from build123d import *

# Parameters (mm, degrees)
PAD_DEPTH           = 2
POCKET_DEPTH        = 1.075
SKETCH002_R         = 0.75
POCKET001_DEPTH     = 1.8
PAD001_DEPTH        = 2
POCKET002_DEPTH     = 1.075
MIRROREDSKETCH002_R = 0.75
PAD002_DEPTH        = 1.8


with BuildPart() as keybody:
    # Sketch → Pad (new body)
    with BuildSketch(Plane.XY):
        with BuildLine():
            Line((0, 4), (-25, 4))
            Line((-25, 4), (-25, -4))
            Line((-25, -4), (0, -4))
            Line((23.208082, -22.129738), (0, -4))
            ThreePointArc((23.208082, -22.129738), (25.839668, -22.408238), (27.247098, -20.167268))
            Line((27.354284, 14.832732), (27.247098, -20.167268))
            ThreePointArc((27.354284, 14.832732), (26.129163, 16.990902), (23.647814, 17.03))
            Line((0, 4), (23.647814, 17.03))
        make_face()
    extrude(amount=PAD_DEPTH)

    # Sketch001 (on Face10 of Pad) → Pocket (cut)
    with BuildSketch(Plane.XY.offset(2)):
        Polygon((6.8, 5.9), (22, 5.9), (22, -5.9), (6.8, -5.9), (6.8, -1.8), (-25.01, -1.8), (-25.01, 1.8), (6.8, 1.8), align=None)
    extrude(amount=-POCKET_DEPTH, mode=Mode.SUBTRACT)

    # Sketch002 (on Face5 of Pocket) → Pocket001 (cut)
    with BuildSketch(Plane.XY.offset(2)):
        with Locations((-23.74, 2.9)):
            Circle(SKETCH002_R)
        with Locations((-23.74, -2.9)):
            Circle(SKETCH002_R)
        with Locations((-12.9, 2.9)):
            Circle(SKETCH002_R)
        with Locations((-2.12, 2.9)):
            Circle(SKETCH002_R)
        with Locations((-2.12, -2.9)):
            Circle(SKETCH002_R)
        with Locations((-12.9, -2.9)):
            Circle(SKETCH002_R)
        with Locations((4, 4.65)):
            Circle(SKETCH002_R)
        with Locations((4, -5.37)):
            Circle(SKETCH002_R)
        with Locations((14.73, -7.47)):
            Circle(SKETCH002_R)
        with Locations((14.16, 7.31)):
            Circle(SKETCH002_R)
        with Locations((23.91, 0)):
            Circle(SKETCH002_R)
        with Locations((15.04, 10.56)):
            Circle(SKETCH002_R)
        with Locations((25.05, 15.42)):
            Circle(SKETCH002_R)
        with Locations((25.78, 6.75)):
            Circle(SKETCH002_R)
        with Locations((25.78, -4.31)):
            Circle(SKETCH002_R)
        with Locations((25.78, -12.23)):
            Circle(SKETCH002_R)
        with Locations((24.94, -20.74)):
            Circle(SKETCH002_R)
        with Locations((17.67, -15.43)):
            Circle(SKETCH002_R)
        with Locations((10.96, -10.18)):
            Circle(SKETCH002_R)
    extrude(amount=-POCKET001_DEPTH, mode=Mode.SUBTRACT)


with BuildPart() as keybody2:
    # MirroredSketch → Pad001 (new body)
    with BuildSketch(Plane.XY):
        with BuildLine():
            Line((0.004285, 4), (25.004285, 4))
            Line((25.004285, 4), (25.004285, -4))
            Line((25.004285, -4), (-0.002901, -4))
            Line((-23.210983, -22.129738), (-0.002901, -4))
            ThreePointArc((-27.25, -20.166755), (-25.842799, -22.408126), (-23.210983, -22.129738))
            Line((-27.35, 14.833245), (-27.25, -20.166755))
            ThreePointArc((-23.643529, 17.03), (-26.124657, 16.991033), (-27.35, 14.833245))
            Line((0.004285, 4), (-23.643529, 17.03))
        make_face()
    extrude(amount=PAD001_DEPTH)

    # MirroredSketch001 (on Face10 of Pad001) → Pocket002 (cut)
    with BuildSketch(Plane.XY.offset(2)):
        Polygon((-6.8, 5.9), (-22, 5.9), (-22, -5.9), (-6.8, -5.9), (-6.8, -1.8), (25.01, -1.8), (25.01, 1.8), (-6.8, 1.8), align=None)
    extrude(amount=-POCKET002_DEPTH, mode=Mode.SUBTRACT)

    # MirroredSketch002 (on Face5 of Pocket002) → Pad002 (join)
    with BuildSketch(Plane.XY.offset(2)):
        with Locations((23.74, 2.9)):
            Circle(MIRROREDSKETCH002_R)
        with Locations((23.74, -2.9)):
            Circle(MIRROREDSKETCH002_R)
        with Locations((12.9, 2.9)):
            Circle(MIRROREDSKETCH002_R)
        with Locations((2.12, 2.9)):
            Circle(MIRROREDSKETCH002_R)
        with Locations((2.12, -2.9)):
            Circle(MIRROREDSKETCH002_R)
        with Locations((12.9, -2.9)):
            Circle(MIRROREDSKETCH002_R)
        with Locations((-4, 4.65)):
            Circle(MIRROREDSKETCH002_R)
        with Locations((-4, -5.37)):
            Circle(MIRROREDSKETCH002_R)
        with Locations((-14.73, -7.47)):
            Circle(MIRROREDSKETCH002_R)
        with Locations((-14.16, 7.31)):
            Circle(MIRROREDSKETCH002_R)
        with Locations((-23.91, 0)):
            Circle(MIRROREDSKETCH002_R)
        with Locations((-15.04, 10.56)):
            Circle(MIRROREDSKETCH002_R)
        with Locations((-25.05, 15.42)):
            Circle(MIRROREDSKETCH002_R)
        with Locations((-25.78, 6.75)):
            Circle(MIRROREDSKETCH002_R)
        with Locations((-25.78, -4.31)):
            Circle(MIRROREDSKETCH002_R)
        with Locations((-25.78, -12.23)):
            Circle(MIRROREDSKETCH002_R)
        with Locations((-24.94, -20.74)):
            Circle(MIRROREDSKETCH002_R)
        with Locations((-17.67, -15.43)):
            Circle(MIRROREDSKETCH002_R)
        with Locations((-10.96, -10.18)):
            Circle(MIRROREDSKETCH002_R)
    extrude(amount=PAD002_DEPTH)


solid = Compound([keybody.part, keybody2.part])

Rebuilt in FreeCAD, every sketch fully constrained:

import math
import FreeCAD as App
import Part
import Sketcher

V = App.Vector
Q = App.Units.Quantity

doc = App.newDocument("Part")
body = doc.addObject("PartDesign::Body", "Body")

sketch1 = body.newObject("Sketcher::SketchObject", "Sketch")
sketch1.AttachmentSupport = (doc.getObject("XY_Plane"), [""])
sketch1.MapMode = "FlatFace"
sketch1.addGeometry([
    Part.LineSegment(V(0, 4, 0), V(-25, 4, 0)),
    Part.LineSegment(V(-25, 4, 0), V(-25, -4, 0)),
    Part.LineSegment(V(-25, -4, 0), V(0, -4, 0)),
    Part.LineSegment(V(0, -4, 0), V(23.208082, -22.129738, 0)),
    Part.ArcOfCircle(Part.Circle(V(24.74711, -20.159612, 0), V(0, 0, 1), 2.5), math.radians(-127.996331), math.radians(-0.175452)),
    Part.LineSegment(V(27.247098, -20.167268, 0), V(27.354284, 14.832732, 0)),
    Part.ArcOfCircle(Part.Circle(V(24.854295, 14.840387, 0), V(0, 0, 1), 2.5), math.radians(-0.175442), math.radians(118.854857)),
    Part.LineSegment(V(23.647814, 17.03, 0), V(0, 4, 0)),
], False)
sketch1.addConstraint([
    Sketcher.Constraint("Coincident", 0, 2, 1, 1),
    Sketcher.Constraint("Coincident", 1, 2, 2, 1),
    Sketcher.Constraint("Coincident", 2, 2, 3, 1),
    Sketcher.Constraint("Tangent", 3, 2, 4, 1),
    Sketcher.Constraint("Tangent", 4, 2, 5, 1),
    Sketcher.Constraint("Tangent", 5, 2, 6, 1),
    Sketcher.Constraint("Tangent", 6, 2, 7, 1),
    Sketcher.Constraint("Coincident", 7, 2, 0, 1),
    Sketcher.Constraint("Horizontal", 0),
    Sketcher.Constraint("Vertical", 1),
    Sketcher.Constraint("Horizontal", 2),
    Sketcher.Constraint("Equal", 4, 6),
    Sketcher.Constraint("Symmetric", 2, 2, 7, 2, -1, 1),
    Sketcher.Constraint("PointOnObject", 2, 2, -2),
    Sketcher.Constraint("Radius", 4, Q("2.5 mm")),
    Sketcher.Constraint("DistanceX", 0, 2, 0, 1, Q("25 mm")),
    Sketcher.Constraint("DistanceY", 1, 2, 1, 1, Q("8 mm")),
    Sketcher.Constraint("Distance", 7, Q("27 mm")),
    Sketcher.Constraint("DistanceY", 4, 3, 6, 3, Q("35 mm")),
    Sketcher.Constraint("Distance", 3, Q("29.449999 mm")),
    Sketcher.Constraint("DistanceY", -1, 1, 6, 2, Q("17.03 mm")),
])
pad1 = body.newObject("PartDesign::Pad", "Pad")
pad1.Profile = sketch1
pad1.Length = 2

sketch2 = body.newObject("Sketcher::SketchObject", "Sketch001")
sketch2.AttachmentSupport = (doc.getObject("XY_Plane"), [""])
sketch2.MapMode = "FlatFace"
sketch2.AttachmentOffset = App.Placement(V(0, 0, 2), App.Rotation())
sketch2.addGeometry([
    Part.LineSegment(V(22, 5.9, 0), V(6.8, 5.9, 0)),
    Part.LineSegment(V(6.8, 5.9, 0), V(6.8, 1.8, 0)),
    Part.LineSegment(V(6.8, 1.8, 0), V(-25.01, 1.8, 0)),
    Part.LineSegment(V(-25.01, 1.8, 0), V(-25.01, -1.8, 0)),
    Part.LineSegment(V(-25.01, -1.8, 0), V(6.8, -1.8, 0)),
    Part.LineSegment(V(6.8, -1.8, 0), V(6.8, -5.9, 0)),
    Part.LineSegment(V(6.8, -5.9, 0), V(22, -5.9, 0)),
    Part.LineSegment(V(22, -5.9, 0), V(22, 5.9, 0)),
], False)
sketch2.addConstraint([
    Sketcher.Constraint("Coincident", 0, 2, 1, 1),
    Sketcher.Constraint("Coincident", 1, 2, 2, 1),
    Sketcher.Constraint("Coincident", 2, 2, 3, 1),
    Sketcher.Constraint("Coincident", 3, 2, 4, 1),
    Sketcher.Constraint("Coincident", 4, 2, 5, 1),
    Sketcher.Constraint("Coincident", 5, 2, 6, 1),
    Sketcher.Constraint("Coincident", 6, 2, 7, 1),
    Sketcher.Constraint("Coincident", 7, 2, 0, 1),
    Sketcher.Constraint("Horizontal", 0),
    Sketcher.Constraint("Vertical", 1),
    Sketcher.Constraint("Horizontal", 2),
    Sketcher.Constraint("Vertical", 3),
    Sketcher.Constraint("Horizontal", 4),
    Sketcher.Constraint("Vertical", 5),
    Sketcher.Constraint("Horizontal", 6),
    Sketcher.Constraint("Vertical", 7),
    Sketcher.Constraint("Symmetric", 1, 2, 4, 2, -1),
    Sketcher.Constraint("Equal", 1, 5),
    Sketcher.Constraint("DistanceX", 0, 2, 0, 1, Q("15.2 mm")),
    Sketcher.Constraint("DistanceY", 1, 2, 1, 1, Q("4.1 mm")),
    Sketcher.Constraint("DistanceY", 3, 2, 3, 1, Q("3.6 mm")),
    Sketcher.Constraint("DistanceX", -1, 1, 6, 2, Q("22 mm")),
    Sketcher.Constraint("DistanceX", 2, 2, 2, 1, Q("31.81 mm")),
])
pocket1 = body.newObject("PartDesign::Pocket", "Pocket")
pocket1.Profile = sketch2
pocket1.Length = 1.075

sketch3 = body.newObject("Sketcher::SketchObject", "Sketch002")
sketch3.AttachmentSupport = (doc.getObject("XY_Plane"), [""])
sketch3.MapMode = "FlatFace"
sketch3.AttachmentOffset = App.Placement(V(0, 0, 2), App.Rotation())
sketch3.addGeometry([
    Part.Circle(V(-23.74, 2.9, 0), V(0, 0, 1), 0.75),
    Part.Circle(V(-23.74, -2.9, 0), V(0, 0, 1), 0.75),
    Part.Circle(V(-12.9, 2.9, 0), V(0, 0, 1), 0.75),
    Part.Circle(V(-2.12, 2.9, 0), V(0, 0, 1), 0.75),
    Part.Circle(V(-2.12, -2.9, 0), V(0, 0, 1), 0.75),
    Part.Circle(V(-12.9, -2.9, 0), V(0, 0, 1), 0.75),
    Part.Circle(V(4, 4.65, 0), V(0, 0, 1), 0.75),
    Part.Circle(V(4, -5.37, 0), V(0, 0, 1), 0.75),
    Part.Circle(V(14.73, -7.47, 0), V(0, 0, 1), 0.75),
    Part.Circle(V(14.16, 7.31, 0), V(0, 0, 1), 0.75),
    Part.Circle(V(23.91, 0, 0), V(0, 0, 1), 0.75),
    Part.Circle(V(15.04, 10.56, 0), V(0, 0, 1), 0.75),
    Part.Circle(V(25.05, 15.42, 0), V(0, 0, 1), 0.75),
    Part.Circle(V(25.78, 6.75, 0), V(0, 0, 1), 0.75),
    Part.Circle(V(25.78, -4.31, 0), V(0, 0, 1), 0.75),
    Part.Circle(V(25.78, -12.23, 0), V(0, 0, 1), 0.75),
    Part.Circle(V(24.94, -20.74, 0), V(0, 0, 1), 0.75),
    Part.Circle(V(17.67, -15.43, 0), V(0, 0, 1), 0.75),
    Part.Circle(V(10.96, -10.18, 0), V(0, 0, 1), 0.75),
], False)
sketch3.addConstraint([
    Sketcher.Constraint("Equal", 0, 1),
    Sketcher.Constraint("Equal", 1, 2),
    Sketcher.Constraint("Equal", 2, 3),
    Sketcher.Constraint("Equal", 3, 4),
    Sketcher.Constraint("Equal", 4, 5),
    Sketcher.Constraint("Equal", 5, 6),
    Sketcher.Constraint("Equal", 6, 7),
    Sketcher.Constraint("Equal", 7, 8),
    Sketcher.Constraint("Equal", 8, 9),
    Sketcher.Constraint("Equal", 9, 10),
    Sketcher.Constraint("Equal", 10, 11),
    Sketcher.Constraint("Equal", 11, 12),
    Sketcher.Constraint("Equal", 12, 13),
    Sketcher.Constraint("Equal", 13, 14),
    Sketcher.Constraint("Equal", 14, 15),
    Sketcher.Constraint("Equal", 15, 16),
    Sketcher.Constraint("Equal", 16, 17),
    Sketcher.Constraint("Equal", 17, 18),
    Sketcher.Constraint("Symmetric", 0, 3, 1, 3, -1),
    Sketcher.Constraint("Symmetric", 3, 3, 4, 3, -1),
    Sketcher.Constraint("Symmetric", 2, 3, 5, 3, -1),
    Sketcher.Constraint("PointOnObject", 10, 3, -1),
    Sketcher.Constraint("Horizontal", 0, 3, 2, 3),
    Sketcher.Constraint("Horizontal", 2, 3, 3, 3),
    Sketcher.Constraint("Vertical", 6, 3, 7, 3),
    Sketcher.Constraint("Vertical", 13, 3, 14, 3),
    Sketcher.Constraint("Vertical", 14, 3, 15, 3),
    Sketcher.Constraint("Diameter", 0, Q("1.5 mm")),
    Sketcher.Constraint("DistanceX", -1, 1, 6, 3, Q("4 mm")),
    Sketcher.Constraint("DistanceY", -1, 1, 0, 3, Q("2.9 mm")),
    Sketcher.Constraint("DistanceX", 2, 3, -1, 1, Q("12.9 mm")),
    Sketcher.Constraint("DistanceY", 8, 3, 7, 3, Q("2.1 mm")),
    Sketcher.Constraint("DistanceY", 17, 3, 15, 3, Q("3.2 mm")),
    Sketcher.Constraint("DistanceX", 0, 3, -1, 1, Q("23.74 mm")),
    Sketcher.Constraint("DistanceX", 3, 3, -1, 1, Q("2.12 mm")),
    Sketcher.Constraint("DistanceY", -1, 1, 6, 3, Q("4.65 mm")),
    Sketcher.Constraint("DistanceY", 7, 3, -1, 1, Q("5.37 mm")),
    Sketcher.Constraint("DistanceX", -1, 1, 8, 3, Q("14.73 mm")),
    Sketcher.Constraint("DistanceX", -1, 1, 9, 3, Q("14.16 mm")),
    Sketcher.Constraint("DistanceY", -1, 1, 9, 3, Q("7.31 mm")),
    Sketcher.Constraint("DistanceX", -1, 1, 10, 3, Q("23.91 mm")),
    Sketcher.Constraint("DistanceX", -1, 1, 11, 3, Q("15.04 mm")),
    Sketcher.Constraint("DistanceY", -1, 1, 11, 3, Q("10.56 mm")),
    Sketcher.Constraint("DistanceX", -1, 1, 12, 3, Q("25.05 mm")),
    Sketcher.Constraint("DistanceY", -1, 1, 12, 3, Q("15.42 mm")),
    Sketcher.Constraint("DistanceX", -1, 1, 13, 3, Q("25.78 mm")),
    Sketcher.Constraint("DistanceY", -1, 1, 13, 3, Q("6.75 mm")),
    Sketcher.Constraint("DistanceY", 14, 3, -1, 1, Q("4.31 mm")),
    Sketcher.Constraint("DistanceY", 15, 3, -1, 1, Q("12.23 mm")),
    Sketcher.Constraint("DistanceX", -1, 1, 16, 3, Q("24.94 mm")),
    Sketcher.Constraint("DistanceY", 16, 3, -1, 1, Q("20.74 mm")),
    Sketcher.Constraint("DistanceX", -1, 1, 17, 3, Q("17.67 mm")),
    Sketcher.Constraint("DistanceX", -1, 1, 18, 3, Q("10.96 mm")),
    Sketcher.Constraint("DistanceY", 18, 3, -1, 1, Q("10.18 mm")),
])
pocket2 = body.newObject("PartDesign::Pocket", "Pocket001")
pocket2.Profile = sketch3
pocket2.Length = 1.8
body2 = doc.addObject("PartDesign::Body", "Body001")

sketch4 = body2.newObject("Sketcher::SketchObject", "Sketch003")
sketch4.AttachmentSupport = (doc.getObject("XY_Plane001"), [""])
sketch4.MapMode = "FlatFace"
sketch4.addGeometry([
    Part.LineSegment(V(25.004285, 4, 0), V(0.004285, 4, 0)),
    Part.LineSegment(V(0.004285, 4, 0), V(-23.643529, 17.03, 0)),
    Part.ArcOfCircle(Part.Circle(V(-24.85001, 14.840388, 0), V(0, 0, 1), 2.5), math.radians(61.145136), math.radians(180.163699)),
    Part.LineSegment(V(-27.35, 14.833245, 0), V(-27.25, -20.166755, 0)),
    Part.ArcOfCircle(Part.Circle(V(-24.75001, -20.159613, 0), V(0, 0, 1), 2.5), math.radians(-179.83631), math.radians(-52.00367)),
    Part.LineSegment(V(-23.210983, -22.129738, 0), V(-0.002901, -4, 0)),
    Part.LineSegment(V(-0.002901, -4, 0), V(25.004285, -4, 0)),
    Part.LineSegment(V(25.004285, -4, 0), V(25.004285, 4, 0)),
], False)
sketch4.addConstraint([
    Sketcher.Constraint("Coincident", 0, 2, 1, 1),
    Sketcher.Constraint("Tangent", 1, 2, 2, 1),
    Sketcher.Constraint("Tangent", 2, 2, 3, 1),
    Sketcher.Constraint("Tangent", 3, 2, 4, 1),
    Sketcher.Constraint("Tangent", 4, 2, 5, 1),
    Sketcher.Constraint("Coincident", 5, 2, 6, 1),
    Sketcher.Constraint("Coincident", 6, 2, 7, 1),
    Sketcher.Constraint("Coincident", 7, 2, 0, 1),
    Sketcher.Constraint("Horizontal", 0),
    Sketcher.Constraint("Horizontal", 6),
    Sketcher.Constraint("Vertical", 7),
    Sketcher.Constraint("Equal", 2, 4),
    Sketcher.Constraint("Radius", 2, Q("2.5 mm")),
    Sketcher.Constraint("DistanceX", 0, 2, 0, 1, Q("25 mm")),
    Sketcher.Constraint("DistanceY", 7, 1, 7, 2, Q("8 mm")),
    Sketcher.Constraint("Distance", 1, Q("27 mm")),
    Sketcher.Constraint("DistanceY", -1, 1, 0, 2, Q("4 mm")),
    Sketcher.Constraint("DistanceY", 4, 3, 2, 3, Q("35 mm")),
    Sketcher.Constraint("DistanceX", 2, 3, 4, 3, Q("0.1 mm")),
    Sketcher.Constraint("Distance", 5, Q("29.449999 mm")),
    Sketcher.Constraint("DistanceY", -1, 1, 1, 2, Q("17.03 mm")),
    Sketcher.Constraint("DistanceX", 2, 2, -1, 1, Q("27.35 mm")),
])
pad2 = body2.newObject("PartDesign::Pad", "Pad001")
pad2.Profile = sketch4
pad2.Length = 2

sketch5 = body2.newObject("Sketcher::SketchObject", "Sketch004")
sketch5.AttachmentSupport = (doc.getObject("XY_Plane001"), [""])
sketch5.MapMode = "FlatFace"
sketch5.AttachmentOffset = App.Placement(V(0, 0, 2), App.Rotation())
sketch5.addGeometry([
    Part.LineSegment(V(-6.8, 5.9, 0), V(-22, 5.9, 0)),
    Part.LineSegment(V(-22, 5.9, 0), V(-22, -5.9, 0)),
    Part.LineSegment(V(-22, -5.9, 0), V(-6.8, -5.9, 0)),
    Part.LineSegment(V(-6.8, -5.9, 0), V(-6.8, -1.8, 0)),
    Part.LineSegment(V(-6.8, -1.8, 0), V(25.01, -1.8, 0)),
    Part.LineSegment(V(25.01, -1.8, 0), V(25.01, 1.8, 0)),
    Part.LineSegment(V(25.01, 1.8, 0), V(-6.8, 1.8, 0)),
    Part.LineSegment(V(-6.8, 1.8, 0), V(-6.8, 5.9, 0)),
], False)
sketch5.addConstraint([
    Sketcher.Constraint("Coincident", 0, 2, 1, 1),
    Sketcher.Constraint("Coincident", 1, 2, 2, 1),
    Sketcher.Constraint("Coincident", 2, 2, 3, 1),
    Sketcher.Constraint("Coincident", 3, 2, 4, 1),
    Sketcher.Constraint("Coincident", 4, 2, 5, 1),
    Sketcher.Constraint("Coincident", 5, 2, 6, 1),
    Sketcher.Constraint("Coincident", 6, 2, 7, 1),
    Sketcher.Constraint("Coincident", 7, 2, 0, 1),
    Sketcher.Constraint("Horizontal", 0),
    Sketcher.Constraint("Vertical", 1),
    Sketcher.Constraint("Horizontal", 2),
    Sketcher.Constraint("Vertical", 3),
    Sketcher.Constraint("Horizontal", 4),
    Sketcher.Constraint("Vertical", 5),
    Sketcher.Constraint("Horizontal", 6),
    Sketcher.Constraint("Vertical", 7),
    Sketcher.Constraint("Symmetric", 3, 2, 6, 2, -1),
    Sketcher.Constraint("Equal", 3, 7),
    Sketcher.Constraint("DistanceX", 0, 2, 0, 1, Q("15.2 mm")),
    Sketcher.Constraint("DistanceY", 1, 2, 1, 1, Q("11.8 mm")),
    Sketcher.Constraint("DistanceY", 3, 1, 3, 2, Q("4.1 mm")),
    Sketcher.Constraint("DistanceX", 0, 2, -1, 1, Q("22 mm")),
    Sketcher.Constraint("DistanceX", 4, 1, 4, 2, Q("31.81 mm")),
])
pocket3 = body2.newObject("PartDesign::Pocket", "Pocket002")
pocket3.Profile = sketch5
pocket3.Length = 1.075

sketch6 = body2.newObject("Sketcher::SketchObject", "Sketch005")
sketch6.AttachmentSupport = (doc.getObject("XY_Plane001"), [""])
sketch6.MapMode = "FlatFace"
sketch6.AttachmentOffset = App.Placement(V(0, 0, 2), App.Rotation())
sketch6.addGeometry([
    Part.Circle(V(23.74, 2.9, 0), V(0, 0, 1), 0.75),
    Part.Circle(V(23.74, -2.9, 0), V(0, 0, 1), 0.75),
    Part.Circle(V(12.9, 2.9, 0), V(0, 0, 1), 0.75),
    Part.Circle(V(2.12, 2.9, 0), V(0, 0, 1), 0.75),
    Part.Circle(V(2.12, -2.9, 0), V(0, 0, 1), 0.75),
    Part.Circle(V(12.9, -2.9, 0), V(0, 0, 1), 0.75),
    Part.Circle(V(-4, 4.65, 0), V(0, 0, 1), 0.75),
    Part.Circle(V(-4, -5.37, 0), V(0, 0, 1), 0.75),
    Part.Circle(V(-14.73, -7.47, 0), V(0, 0, 1), 0.75),
    Part.Circle(V(-14.16, 7.31, 0), V(0, 0, 1), 0.75),
    Part.Circle(V(-23.91, 0, 0), V(0, 0, 1), 0.75),
    Part.Circle(V(-15.04, 10.56, 0), V(0, 0, 1), 0.75),
    Part.Circle(V(-25.05, 15.42, 0), V(0, 0, 1), 0.75),
    Part.Circle(V(-25.78, 6.75, 0), V(0, 0, 1), 0.75),
    Part.Circle(V(-25.78, -4.31, 0), V(0, 0, 1), 0.75),
    Part.Circle(V(-25.78, -12.23, 0), V(0, 0, 1), 0.75),
    Part.Circle(V(-24.94, -20.74, 0), V(0, 0, 1), 0.75),
    Part.Circle(V(-17.67, -15.43, 0), V(0, 0, 1), 0.75),
    Part.Circle(V(-10.96, -10.18, 0), V(0, 0, 1), 0.75),
], False)
sketch6.addConstraint([
    Sketcher.Constraint("Equal", 0, 1),
    Sketcher.Constraint("Equal", 1, 2),
    Sketcher.Constraint("Equal", 2, 3),
    Sketcher.Constraint("Equal", 3, 4),
    Sketcher.Constraint("Equal", 4, 5),
    Sketcher.Constraint("Equal", 5, 6),
    Sketcher.Constraint("Equal", 6, 7),
    Sketcher.Constraint("Equal", 7, 8),
    Sketcher.Constraint("Equal", 8, 9),
    Sketcher.Constraint("Equal", 9, 10),
    Sketcher.Constraint("Equal", 10, 11),
    Sketcher.Constraint("Equal", 11, 12),
    Sketcher.Constraint("Equal", 12, 13),
    Sketcher.Constraint("Equal", 13, 14),
    Sketcher.Constraint("Equal", 14, 15),
    Sketcher.Constraint("Equal", 15, 16),
    Sketcher.Constraint("Equal", 16, 17),
    Sketcher.Constraint("Equal", 17, 18),
    Sketcher.Constraint("Symmetric", 0, 3, 1, 3, -1),
    Sketcher.Constraint("Symmetric", 3, 3, 4, 3, -1),
    Sketcher.Constraint("Symmetric", 2, 3, 5, 3, -1),
    Sketcher.Constraint("PointOnObject", 10, 3, -1),
    Sketcher.Constraint("Horizontal", 0, 3, 2, 3),
    Sketcher.Constraint("Horizontal", 2, 3, 3, 3),
    Sketcher.Constraint("Vertical", 6, 3, 7, 3),
    Sketcher.Constraint("Vertical", 13, 3, 14, 3),
    Sketcher.Constraint("Vertical", 14, 3, 15, 3),
    Sketcher.Constraint("Diameter", 0, Q("1.5 mm")),
    Sketcher.Constraint("DistanceX", 6, 3, -1, 1, Q("4 mm")),
    Sketcher.Constraint("DistanceY", -1, 1, 0, 3, Q("2.9 mm")),
    Sketcher.Constraint("DistanceX", -1, 1, 2, 3, Q("12.9 mm")),
    Sketcher.Constraint("DistanceY", 8, 3, 7, 3, Q("2.1 mm")),
    Sketcher.Constraint("DistanceY", 17, 3, 15, 3, Q("3.2 mm")),
    Sketcher.Constraint("DistanceX", -1, 1, 0, 3, Q("23.74 mm")),
    Sketcher.Constraint("DistanceX", -1, 1, 3, 3, Q("2.12 mm")),
    Sketcher.Constraint("DistanceY", -1, 1, 6, 3, Q("4.65 mm")),
    Sketcher.Constraint("DistanceY", 7, 3, -1, 1, Q("5.37 mm")),
    Sketcher.Constraint("DistanceX", 8, 3, -1, 1, Q("14.73 mm")),
    Sketcher.Constraint("DistanceX", 9, 3, -1, 1, Q("14.16 mm")),
    Sketcher.Constraint("DistanceY", -1, 1, 9, 3, Q("7.31 mm")),
    Sketcher.Constraint("DistanceX", 10, 3, -1, 1, Q("23.91 mm")),
    Sketcher.Constraint("DistanceX", 11, 3, -1, 1, Q("15.04 mm")),
    Sketcher.Constraint("DistanceY", -1, 1, 11, 3, Q("10.56 mm")),
    Sketcher.Constraint("DistanceX", 12, 3, -1, 1, Q("25.05 mm")),
    Sketcher.Constraint("DistanceY", -1, 1, 12, 3, Q("15.42 mm")),
    Sketcher.Constraint("DistanceX", 13, 3, -1, 1, Q("25.78 mm")),
    Sketcher.Constraint("DistanceY", -1, 1, 13, 3, Q("6.75 mm")),
    Sketcher.Constraint("DistanceY", 14, 3, -1, 1, Q("4.31 mm")),
    Sketcher.Constraint("DistanceY", 15, 3, -1, 1, Q("12.23 mm")),
    Sketcher.Constraint("DistanceX", 16, 3, -1, 1, Q("24.94 mm")),
    Sketcher.Constraint("DistanceY", 16, 3, -1, 1, Q("20.74 mm")),
    Sketcher.Constraint("DistanceX", 17, 3, -1, 1, Q("17.67 mm")),
    Sketcher.Constraint("DistanceX", 18, 3, -1, 1, Q("10.96 mm")),
    Sketcher.Constraint("DistanceY", 18, 3, -1, 1, Q("10.18 mm")),
])
pad3 = body2.newObject("PartDesign::Pad", "Pad002")
pad3.Profile = sketch6
pad3.Length = 1.8

doc.recompute()
